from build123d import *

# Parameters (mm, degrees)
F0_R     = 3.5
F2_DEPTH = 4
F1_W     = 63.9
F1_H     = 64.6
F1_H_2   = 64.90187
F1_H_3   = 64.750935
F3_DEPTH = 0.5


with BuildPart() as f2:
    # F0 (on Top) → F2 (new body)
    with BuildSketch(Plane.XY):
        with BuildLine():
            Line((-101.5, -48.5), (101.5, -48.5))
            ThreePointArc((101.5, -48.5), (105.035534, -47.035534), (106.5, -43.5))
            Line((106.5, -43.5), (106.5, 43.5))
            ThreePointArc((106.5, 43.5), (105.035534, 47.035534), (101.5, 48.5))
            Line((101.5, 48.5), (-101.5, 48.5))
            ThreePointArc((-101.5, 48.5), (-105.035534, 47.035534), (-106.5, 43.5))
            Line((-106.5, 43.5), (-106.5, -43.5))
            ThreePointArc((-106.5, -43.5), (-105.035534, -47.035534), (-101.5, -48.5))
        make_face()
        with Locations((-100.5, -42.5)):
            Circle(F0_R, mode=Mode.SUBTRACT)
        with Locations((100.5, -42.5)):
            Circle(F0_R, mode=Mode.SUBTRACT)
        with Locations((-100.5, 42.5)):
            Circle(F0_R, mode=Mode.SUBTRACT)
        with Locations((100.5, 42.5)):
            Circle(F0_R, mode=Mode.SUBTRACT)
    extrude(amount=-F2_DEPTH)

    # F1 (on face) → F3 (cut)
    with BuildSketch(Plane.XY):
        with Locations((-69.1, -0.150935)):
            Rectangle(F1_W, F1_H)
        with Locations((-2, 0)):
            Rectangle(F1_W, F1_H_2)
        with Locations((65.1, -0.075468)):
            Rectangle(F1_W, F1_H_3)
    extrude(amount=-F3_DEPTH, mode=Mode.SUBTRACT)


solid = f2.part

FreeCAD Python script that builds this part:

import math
import FreeCAD as App
import Part
import Sketcher
Q = App.Units.Quantity

doc = App.newDocument("Part")
body = doc.addObject("PartDesign::Body", "Body")

# Sketch on XY plane
sketch1 = body.newObject("Sketcher::SketchObject", "Sketch")
sketch1.AttachmentSupport = (doc.getObject("XY_Plane"), [""])
sketch1.MapMode = "FlatFace"
sketch1.addGeometry(Part.LineSegment(App.Vector(-101.5, -48.5, 0), App.Vector(101.5, -48.5, 0)), False)
sketch1.addGeometry(Part.ArcOfCircle(Part.Circle(App.Vector(101.5, -43.5, 0), App.Vector(0, 0, 1), 5), math.radians(-90), math.radians(0)), False)
sketch1.addGeometry(Part.LineSegment(App.Vector(106.5, -43.5, 0), App.Vector(106.5, 43.5, 0)), False)
sketch1.addGeometry(Part.ArcOfCircle(Part.Circle(App.Vector(101.5, 43.5, 0), App.Vector(0, 0, 1), 5), math.radians(0), math.radians(90)), False)
sketch1.addGeometry(Part.LineSegment(App.Vector(101.5, 48.5, 0), App.Vector(-101.5, 48.5, 0)), False)
sketch1.addGeometry(Part.ArcOfCircle(Part.Circle(App.Vector(-101.5, 43.5, 0), App.Vector(0, 0, 1), 5), math.radians(90), math.radians(180)), False)
sketch1.addGeometry(Part.LineSegment(App.Vector(-106.5, 43.5, 0), App.Vector(-106.5, -43.5, 0)), False)
sketch1.addGeometry(Part.ArcOfCircle(Part.Circle(App.Vector(-101.5, -43.5, 0), App.Vector(0, 0, 1), 5), math.radians(180), math.radians(270)), False)
sketch1.addGeometry(Part.Circle(App.Vector(-100.5, -42.5, 0), App.Vector(0, 0, 1), 3.5), False)
sketch1.addGeometry(Part.Circle(App.Vector(100.5, -42.5, 0), App.Vector(0, 0, 1), 3.5), False)
sketch1.addGeometry(Part.Circle(App.Vector(-100.5, 42.5, 0), App.Vector(0, 0, 1), 3.5), False)
sketch1.addGeometry(Part.Circle(App.Vector(100.5, 42.5, 0), App.Vector(0, 0, 1), 3.5), False)
sketch1.addConstraint(Sketcher.Constraint("Tangent", 0, 2, 1, 1))
sketch1.addConstraint(Sketcher.Constraint("Tangent", 1, 2, 2, 1))
sketch1.addConstraint(Sketcher.Constraint("Tangent", 2, 2, 3, 1))
sketch1.addConstraint(Sketcher.Constraint("Tangent", 3, 2, 4, 1))
sketch1.addConstraint(Sketcher.Constraint("Tangent", 4, 2, 5, 1))
sketch1.addConstraint(Sketcher.Constraint("Tangent", 5, 2, 6, 1))
sketch1.addConstraint(Sketcher.Constraint("Tangent", 6, 2, 7, 1))
sketch1.addConstraint(Sketcher.Constraint("Tangent", 7, 2, 0, 1))
sketch1.addConstraint(Sketcher.Constraint("Horizontal", 0))
sketch1.addConstraint(Sketcher.Constraint("Vertical", 2))
sketch1.addConstraint(Sketcher.Constraint("Horizontal", 4))
sketch1.addConstraint(Sketcher.Constraint("Vertical", 6))
sketch1.addConstraint(Sketcher.Constraint("Equal", 1, 3))
sketch1.addConstraint(Sketcher.Constraint("Equal", 3, 5))
sketch1.addConstraint(Sketcher.Constraint("Equal", 5, 7))
sketch1.addConstraint(Sketcher.Constraint("Equal", 8, 9))
sketch1.addConstraint(Sketcher.Constraint("Equal", 9, 10))
sketch1.addConstraint(Sketcher.Constraint("Equal", 10, 11))
sketch1.addConstraint(Sketcher.Constraint("Symmetric", 1, 3, 5, 3, -1, 1))
sketch1.addConstraint(Sketcher.Constraint("Symmetric", 9, 3, 10, 3, -1, 1))
sketch1.addConstraint(Sketcher.Constraint("Symmetric", 8, 3, 11, 3, -1, 1))
sketch1.addConstraint(Sketcher.Constraint("Symmetric", 8, 3, 9, 3, -2))
sketch1.addConstraint(Sketcher.Constraint("Diameter", 8, Q("7 mm")))
sketch1.addConstraint(Sketcher.Constraint("Radius", 1, Q("5 mm")))
sketch1.addConstraint(Sketcher.Constraint("DistanceX", 0, 1, 0, 2, Q("203 mm")))
sketch1.addConstraint(Sketcher.Constraint("DistanceY", 2, 1, 2, 2, Q("87 mm")))
sketch1.addConstraint(Sketcher.Constraint("DistanceX", 7, 3, 8, 3, Q("1 mm")))
sketch1.addConstraint(Sketcher.Constraint("DistanceY", 7, 3, 8, 3, Q("1 mm")))
pad1 = body.newObject("PartDesign::Pad", "Pad")
pad1.Profile = sketch1
pad1.Length = 4
pad1.Reversed = True

# Sketch on XY plane
sketch2 = body.newObject("Sketcher::SketchObject", "Sketch001")
sketch2.AttachmentSupport = (doc.getObject("XY_Plane"), [""])
sketch2.MapMode = "FlatFace"
sketch2.addGeometry(Part.LineSegment(App.Vector(-101, 32, 0), App.Vector(-101, -32, 0)), False)
sketch2.addGeometry(Part.LineSegment(App.Vector(-101, -32, 0), App.Vector(-37, -32, 0)), False)
sketch2.addGeometry(Part.LineSegment(App.Vector(-37, -32, 0), App.Vector(-37, 32, 0)), False)
sketch2.addGeometry(Part.LineSegment(App.Vector(-37, 32, 0), App.Vector(-101, 32, 0)), False)
sketch2.addGeometry(Part.LineSegment(App.Vector(-34, 32, 0), App.Vector(-34, -32, 0)), False)
sketch2.addGeometry(Part.LineSegment(App.Vector(-34, -32, 0), App.Vector(30, -32, 0)), False)
sketch2.addGeometry(Part.LineSegment(App.Vector(30, -32, 0), App.Vector(30, 32, 0)), False)
sketch2.addGeometry(Part.LineSegment(App.Vector(30, 32, 0), App.Vector(-34, 32, 0)), False)
sketch2.addGeometry(Part.LineSegment(App.Vector(33, 32, 0), App.Vector(33, -32, 0)), False)
sketch2.addGeometry(Part.LineSegment(App.Vector(33, -32, 0), App.Vector(97, -32, 0)), False)
sketch2.addGeometry(Part.LineSegment(App.Vector(97, -32, 0), App.Vector(97, 32, 0)), False)
sketch2.addGeometry(Part.LineSegment(App.Vector(97, 32, 0), App.Vector(33, 32, 0)), False)
sketch2.addConstraint(Sketcher.Constraint("Coincident", 0, 2, 1, 1))
sketch2.addConstraint(Sketcher.Constraint("Coincident", 1, 2, 2, 1))
sketch2.addConstraint(Sketcher.Constraint("Coincident", 2, 2, 3, 1))
sketch2.addConstraint(Sketcher.Constraint("Coincident", 3, 2, 0, 1))
sketch2.addConstraint(Sketcher.Constraint("Coincident", 4, 2, 5, 1))
sketch2.addConstraint(Sketcher.Constraint("Coincident", 5, 2, 6, 1))
sketch2.addConstraint(Sketcher.Constraint("Coincident", 6, 2, 7, 1))
sketch2.addConstraint(Sketcher.Constraint("Coincident", 7, 2, 4, 1))
sketch2.addConstraint(Sketcher.Constraint("Coincident", 8, 2, 9, 1))
sketch2.addConstraint(Sketcher.Constraint("Coincident", 9, 2, 10, 1))
sketch2.addConstraint(Sketcher.Constraint("Coincident", 10, 2, 11, 1))
sketch2.addConstraint(Sketcher.Constraint("Coincident", 11, 2, 8, 1))
sketch2.addConstraint(Sketcher.Constraint("Vertical", 0))
sketch2.addConstraint(Sketcher.Constraint("Horizontal", 1))
sketch2.addConstraint(Sketcher.Constraint("Vertical", 2))
sketch2.addConstraint(Sketcher.Constraint("Horizontal", 3))
sketch2.addConstraint(Sketcher.Constraint("Vertical", 4))
sketch2.addConstraint(Sketcher.Constraint("Horizontal", 5))
sketch2.addConstraint(Sketcher.Constraint("Vertical", 6))
sketch2.addConstraint(Sketcher.Constraint("Horizontal", 7))
sketch2.addConstraint(Sketcher.Constraint("Vertical", 8))
sketch2.addConstraint(Sketcher.Constraint("Horizontal", 9))
sketch2.addConstraint(Sketcher.Constraint("Vertical", 10))
sketch2.addConstraint(Sketcher.Constraint("Horizontal", 11))
sketch2.addConstraint(Sketcher.Constraint("Horizontal", 1, 2, 4, 2))
sketch2.addConstraint(Sketcher.Constraint("Horizontal", 5, 2, 8, 2))
sketch2.addConstraint(Sketcher.Constraint("Equal", 3, 5))
sketch2.addConstraint(Sketcher.Constraint("Equal", 7, 9))
sketch2.addConstraint(Sketcher.Constraint("DistanceX", 1, 1, 1, 2, Q("63.9 mm")))
sketch2.addConstraint(Sketcher.Constraint("DistanceY", 0, 2, 0, 1, Q("64.6 mm")))
sketch2.addConstraint(Sketcher.Constraint("DistanceX", 0, 2, 5, 2, Q("131 mm")))
sketch2.addConstraint(Sketcher.Constraint("DistanceX", 4, 2, 9, 2, Q("131 mm")))
sketch2.addConstraint(Sketcher.Constraint("DistanceY", -1, 1, 10, 2, Q("32.299999 mm")))
sketch2.addConstraint(Sketcher.Constraint("DistanceX", 0, 2, -1, 1, Q("101.05 mm")))
sketch2.addConstraint(Sketcher.Constraint("DistanceY", 4, 2, 4, 1, Q("64.90187 mm")))
sketch2.addConstraint(Sketcher.Constraint("DistanceY", 8, 2, 8, 1, Q("64.750935 mm")))
pocket1 = body.newObject("PartDesign::Pocket", "Pocket")
pocket1.Profile = sketch2
pocket1.Length = 0.5

doc.recompute()
